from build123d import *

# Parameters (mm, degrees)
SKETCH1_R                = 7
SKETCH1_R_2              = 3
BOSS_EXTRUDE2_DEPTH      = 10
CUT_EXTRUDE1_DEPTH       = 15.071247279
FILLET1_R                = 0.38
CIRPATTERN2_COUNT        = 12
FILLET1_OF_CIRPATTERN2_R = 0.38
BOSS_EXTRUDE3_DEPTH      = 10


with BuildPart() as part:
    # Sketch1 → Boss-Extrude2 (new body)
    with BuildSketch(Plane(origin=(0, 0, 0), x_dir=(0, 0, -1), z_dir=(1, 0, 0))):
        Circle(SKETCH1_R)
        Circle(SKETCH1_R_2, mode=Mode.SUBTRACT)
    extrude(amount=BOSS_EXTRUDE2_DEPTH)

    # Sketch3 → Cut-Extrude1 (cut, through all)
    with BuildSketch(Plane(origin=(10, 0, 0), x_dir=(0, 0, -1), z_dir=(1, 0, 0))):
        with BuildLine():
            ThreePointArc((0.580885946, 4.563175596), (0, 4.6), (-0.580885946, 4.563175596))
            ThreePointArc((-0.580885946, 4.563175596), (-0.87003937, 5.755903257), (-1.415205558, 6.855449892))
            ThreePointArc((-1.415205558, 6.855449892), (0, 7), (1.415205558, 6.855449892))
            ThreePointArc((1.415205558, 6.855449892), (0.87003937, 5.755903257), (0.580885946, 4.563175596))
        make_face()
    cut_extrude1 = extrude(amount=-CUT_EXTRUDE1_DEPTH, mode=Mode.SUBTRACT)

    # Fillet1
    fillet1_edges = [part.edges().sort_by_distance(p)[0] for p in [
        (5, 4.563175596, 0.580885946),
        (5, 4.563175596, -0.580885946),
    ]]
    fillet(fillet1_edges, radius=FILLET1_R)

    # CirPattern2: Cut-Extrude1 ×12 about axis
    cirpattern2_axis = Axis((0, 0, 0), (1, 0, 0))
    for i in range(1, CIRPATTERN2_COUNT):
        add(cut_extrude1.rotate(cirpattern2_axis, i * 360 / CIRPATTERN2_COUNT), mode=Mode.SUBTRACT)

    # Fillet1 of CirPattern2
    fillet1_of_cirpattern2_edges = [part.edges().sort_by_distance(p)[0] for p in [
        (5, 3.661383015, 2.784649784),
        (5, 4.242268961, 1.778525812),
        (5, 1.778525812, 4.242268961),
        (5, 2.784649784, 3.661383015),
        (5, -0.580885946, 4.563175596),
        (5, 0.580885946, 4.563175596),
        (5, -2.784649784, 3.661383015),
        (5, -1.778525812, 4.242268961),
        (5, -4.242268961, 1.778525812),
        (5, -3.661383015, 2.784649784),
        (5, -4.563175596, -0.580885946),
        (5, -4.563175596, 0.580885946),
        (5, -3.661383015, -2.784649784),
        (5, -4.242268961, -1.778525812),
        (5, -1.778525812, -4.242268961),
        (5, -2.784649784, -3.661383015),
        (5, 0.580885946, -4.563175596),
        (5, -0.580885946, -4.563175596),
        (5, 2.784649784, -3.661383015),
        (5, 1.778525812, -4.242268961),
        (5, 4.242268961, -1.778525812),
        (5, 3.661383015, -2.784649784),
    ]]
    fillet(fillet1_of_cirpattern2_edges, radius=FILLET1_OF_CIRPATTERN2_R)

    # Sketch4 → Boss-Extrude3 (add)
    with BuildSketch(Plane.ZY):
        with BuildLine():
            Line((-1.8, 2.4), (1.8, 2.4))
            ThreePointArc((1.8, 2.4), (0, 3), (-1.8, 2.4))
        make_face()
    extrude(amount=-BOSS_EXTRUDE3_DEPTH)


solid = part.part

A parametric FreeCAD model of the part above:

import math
import FreeCAD as App
import Part
import Sketcher
Q = App.Units.Quantity


def edges_at(feature, points):
    """Names of the edges that pass closest to the given points."""
    edges = feature.Shape.Edges
    near = lambda p: min(range(len(edges)), key=lambda i: edges[i].distToShape(Part.Vertex(*p))[0])
    return sorted({f"Edge{near(p) + 1}" for p in points})

doc = App.newDocument("Part")
body = doc.addObject("PartDesign::Body", "Body")

sketch1 = body.newObject("Sketcher::SketchObject", "Sketch")
sketch1.AttachmentSupport = (doc.getObject("YZ_Plane"), [""])
sketch1.MapMode = "FlatFace"
sketch1.addGeometry(Part.Circle(App.Vector(0, 0, 0), App.Vector(0, 0, 1), 7), False)
sketch1.addGeometry(Part.Circle(App.Vector(0, 0, 0), App.Vector(0, 0, 1), 3), False)
sketch1.addConstraint(Sketcher.Constraint("Coincident", 0, 3, -1, 1))
sketch1.addConstraint(Sketcher.Constraint("Coincident", 1, 3, -1, 1))
sketch1.addConstraint(Sketcher.Constraint("Diameter", 0, Q("14 mm")))
sketch1.addConstraint(Sketcher.Constraint("Diameter", 1, Q("6 mm")))
pad1 = body.newObject("PartDesign::Pad", "Pad")
pad1.Profile = sketch1
pad1.Length = 10

sketch2 = body.newObject("Sketcher::SketchObject", "Sketch001")
sketch2.AttachmentSupport = (doc.getObject("YZ_Plane"), [""])
sketch2.MapMode = "FlatFace"
sketch2.AttachmentOffset = App.Placement(App.Vector(0, 0, 10), App.Rotation())
sketch2.addGeometry(Part.ArcOfCircle(Part.Circle(App.Vector(0, 0, 0), App.Vector(0, 0, 1), 4.6), math.radians(-7.25), math.radians(7.25)), False)
sketch2.addGeometry(Part.ArcOfCircle(Part.Circle(App.Vector(3.9, -6.1, 0), App.Vector(0, 0, 1), 5.5), math.radians(57), math.radians(83)), False)
sketch2.addGeometry(Part.ArcOfCircle(Part.Circle(App.Vector(0, 0, 0), App.Vector(0, 0, 1), 7), math.radians(-12), math.radians(12)), False)
sketch2.addGeometry(Part.ArcOfCircle(Part.Circle(App.Vector(3.9, 6.1, 0), App.Vector(0, 0, 1), 5.5), math.radians(-83), math.radians(-57)), False)
sketch2.addConstraint(Sketcher.Constraint("Coincident", 0, 1, 1, 2))
sketch2.addConstraint(Sketcher.Constraint("Coincident", 1, 1, 2, 1))
sketch2.addConstraint(Sketcher.Constraint("Coincident", 2, 2, 3, 2))
sketch2.addConstraint(Sketcher.Constraint("Coincident", 3, 1, 0, 2))
sketch2.addConstraint(Sketcher.Constraint("Coincident", 0, 3, -1, 1))
sketch2.addConstraint(Sketcher.Constraint("Coincident", 2, 3, -1, 1))
sketch2.addConstraint(Sketcher.Constraint("Equal", 1, 3))
sketch2.addConstraint(Sketcher.Constraint("Symmetric", 1, 3, 3, 3, -1))
sketch2.addConstraint(Sketcher.Constraint("Radius", 2, Q("7 mm")))
sketch2.addConstraint(Sketcher.Constraint("Radius", 0, Q("4.6 mm")))
sketch2.addConstraint(Sketcher.Constraint("Radius", 1, Q("5.528527 mm")))
sketch2.addConstraint(Sketcher.Constraint("DistanceX", -1, 1, 1, 1, Q("6.85545 mm")))
sketch2.addConstraint(Sketcher.Constraint("DistanceY", 1, 3, 3, 3, Q("12.130311 mm")))
pocket1 = body.newObject("PartDesign::Pocket", "Pocket")
pocket1.Profile = sketch2
pocket1.Type = "ThroughAll"
doc.recompute()

fillet = body.newObject("PartDesign::Fillet", "Fillet")
fillet.Base = (pocket1, edges_at(pocket1, [(5, 4.563, 0.581), (5, 4.563, -0.581)]))
fillet.Radius = 0.38
doc.recompute()

polarpattern = body.newObject("PartDesign::PolarPattern", "PolarPattern")
polarpattern.Originals = [pocket1]
polarpattern.Axis = (doc.getObject("X_Axis"), [""])
polarpattern.Angle = 360
polarpattern.Occurrences = 12
body.Tip = polarpattern
doc.recompute()

fillet2 = body.newObject("PartDesign::Fillet", "Fillet001")
fillet2.Base = (polarpattern, edges_at(polarpattern, [
    (5, 3.661, 2.785),
    (5, 4.242, 1.779),
    (5, 1.779, 4.242),
    (5, 2.785, 3.661),
    (5, -0.581, 4.563),
    (5, 0.581, 4.563),
    (5, -2.785, 3.661),
    (5, -1.779, 4.242),
    (5, -4.242, 1.779),
    (5, -3.661, 2.785),
    (5, -4.563, -0.581),
    (5, -4.563, 0.581),
    (5, -3.661, -2.785),
    (5, -4.242, -1.779),
    (5, -1.779, -4.242),
    (5, -2.785, -3.661),
    (5, 0.581, -4.563),
    (5, -0.581, -4.563),
    (5, 2.785, -3.661),
    (5, 1.779, -4.242),
    (5, 4.242, -1.779),
    (5, 3.661, -2.785),
]))
fillet2.Radius = 0.38

sketch3 = body.newObject("Sketcher::SketchObject", "Sketch002")
sketch3.AttachmentSupport = (doc.getObject("YZ_Plane"), [""])
sketch3.MapMode = "FlatFace"
sketch3.addGeometry(Part.LineSegment(App.Vector(2.4, -1.8, 0), App.Vector(2.4, 1.8, 0)), False)
sketch3.addGeometry(Part.ArcOfCircle(Part.Circle(App.Vector(0, 0, 0), App.Vector(0, 0, 1), 3), math.radians(-37), math.radians(37)), False)
sketch3.addConstraint(Sketcher.Constraint("Coincident", 0, 1, 1, 1))
sketch3.addConstraint(Sketcher.Constraint("Coincident", 1, 2, 0, 2))
sketch3.addConstraint(Sketcher.Constraint("Vertical", 0))
sketch3.addConstraint(Sketcher.Constraint("Coincident", 1, 3, -1, 1))
sketch3.addConstraint(Sketcher.Constraint("Radius", 1, Q("3 mm")))
sketch3.addConstraint(Sketcher.Constraint("DistanceY", 0, 1, 0, 2, Q("3.6 mm")))
pad2 = body.newObject("PartDesign::Pad", "Pad001")
pad2.Profile = sketch3
pad2.Length = 10

doc.recompute()
